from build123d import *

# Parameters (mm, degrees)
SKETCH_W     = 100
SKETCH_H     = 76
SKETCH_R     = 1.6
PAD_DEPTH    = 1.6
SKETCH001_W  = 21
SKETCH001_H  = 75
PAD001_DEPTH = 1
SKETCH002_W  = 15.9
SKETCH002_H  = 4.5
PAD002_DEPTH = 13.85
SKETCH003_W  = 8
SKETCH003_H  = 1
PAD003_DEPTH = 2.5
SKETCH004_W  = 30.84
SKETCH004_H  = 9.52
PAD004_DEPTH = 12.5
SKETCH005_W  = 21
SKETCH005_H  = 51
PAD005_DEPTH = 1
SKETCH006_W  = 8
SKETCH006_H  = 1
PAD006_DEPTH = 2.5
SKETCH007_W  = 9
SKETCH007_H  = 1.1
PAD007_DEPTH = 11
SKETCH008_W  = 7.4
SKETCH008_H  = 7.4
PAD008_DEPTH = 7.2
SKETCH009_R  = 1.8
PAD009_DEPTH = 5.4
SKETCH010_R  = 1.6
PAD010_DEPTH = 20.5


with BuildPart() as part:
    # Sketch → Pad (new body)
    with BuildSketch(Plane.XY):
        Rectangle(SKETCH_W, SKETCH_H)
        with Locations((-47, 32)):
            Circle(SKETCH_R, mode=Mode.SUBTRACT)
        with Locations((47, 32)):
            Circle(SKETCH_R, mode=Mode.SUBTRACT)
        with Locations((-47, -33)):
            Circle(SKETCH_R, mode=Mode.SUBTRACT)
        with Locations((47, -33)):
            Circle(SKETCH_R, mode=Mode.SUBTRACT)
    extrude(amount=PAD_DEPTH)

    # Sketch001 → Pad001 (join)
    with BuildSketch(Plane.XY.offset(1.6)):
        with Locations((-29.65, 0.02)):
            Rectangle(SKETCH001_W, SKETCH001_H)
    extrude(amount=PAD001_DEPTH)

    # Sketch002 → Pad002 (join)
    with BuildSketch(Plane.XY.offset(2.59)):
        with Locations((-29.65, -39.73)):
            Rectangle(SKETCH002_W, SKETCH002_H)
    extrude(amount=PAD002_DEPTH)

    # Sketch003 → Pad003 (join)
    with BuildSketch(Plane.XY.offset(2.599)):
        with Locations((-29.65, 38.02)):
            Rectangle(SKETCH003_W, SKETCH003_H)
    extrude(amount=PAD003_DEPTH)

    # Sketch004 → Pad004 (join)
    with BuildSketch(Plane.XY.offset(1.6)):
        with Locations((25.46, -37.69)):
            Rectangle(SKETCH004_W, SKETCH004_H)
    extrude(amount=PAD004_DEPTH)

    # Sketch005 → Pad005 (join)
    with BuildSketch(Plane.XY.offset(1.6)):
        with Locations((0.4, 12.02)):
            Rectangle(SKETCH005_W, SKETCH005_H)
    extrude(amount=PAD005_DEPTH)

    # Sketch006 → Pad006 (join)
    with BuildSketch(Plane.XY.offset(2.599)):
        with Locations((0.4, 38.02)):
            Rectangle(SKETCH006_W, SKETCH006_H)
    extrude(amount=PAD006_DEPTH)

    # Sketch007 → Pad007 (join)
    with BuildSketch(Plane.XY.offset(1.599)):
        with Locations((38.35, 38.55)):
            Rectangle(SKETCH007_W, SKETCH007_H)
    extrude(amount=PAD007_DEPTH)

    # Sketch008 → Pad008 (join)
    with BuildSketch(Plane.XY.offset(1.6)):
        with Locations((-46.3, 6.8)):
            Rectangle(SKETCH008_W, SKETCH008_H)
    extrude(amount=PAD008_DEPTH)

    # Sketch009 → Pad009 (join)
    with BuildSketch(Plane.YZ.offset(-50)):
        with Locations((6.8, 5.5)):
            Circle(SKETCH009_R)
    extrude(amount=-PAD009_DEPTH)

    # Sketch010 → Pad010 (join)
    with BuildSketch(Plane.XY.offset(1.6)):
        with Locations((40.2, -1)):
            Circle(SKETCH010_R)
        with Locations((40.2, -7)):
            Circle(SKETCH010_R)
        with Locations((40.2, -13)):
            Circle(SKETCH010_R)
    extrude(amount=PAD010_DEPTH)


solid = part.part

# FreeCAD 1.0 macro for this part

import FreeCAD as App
import Part
import Sketcher
from FreeCAD import Vector

doc = App.newDocument("Part")
body = doc.addObject("PartDesign::Body", "Body")

sketch1 = body.newObject("Sketcher::SketchObject", "Sketch")
sketch1.AttachmentSupport = (doc.getObject("XY_Plane"), [""])
sketch1.MapMode = "FlatFace"
sketch1.addGeometry([
    Part.LineSegment(Vector(-50, 38, 0), Vector(-50, -38, 0)),
    Part.LineSegment(Vector(-50, -38, 0), Vector(50, -38, 0)),
    Part.LineSegment(Vector(50, -38, 0), Vector(50, 38, 0)),
    Part.LineSegment(Vector(50, 38, 0), Vector(-50, 38, 0)),
    Part.Circle(Vector(-47, -33, 0), Vector(0, 0, 1), 1.6),
    Part.Circle(Vector(47, -33, 0), Vector(0, 0, 1), 1.6),
    Part.Circle(Vector(-47, 32, 0), Vector(0, 0, 1), 1.6),
    Part.Circle(Vector(47, 32, 0), Vector(0, 0, 1), 1.6),
], False)
sketch1.addConstraint([
    Sketcher.Constraint("Coincident", 0, 2, 1, 1),
    Sketcher.Constraint("Coincident", 1, 2, 2, 1),
    Sketcher.Constraint("Coincident", 2, 2, 3, 1),
    Sketcher.Constraint("Coincident", 3, 2, 0, 1),
    Sketcher.Constraint("Vertical", 0),
    Sketcher.Constraint("Horizontal", 1),
    Sketcher.Constraint("Vertical", 2),
    Sketcher.Constraint("Horizontal", 3),
    Sketcher.Constraint("Equal", 4, 5),
    Sketcher.Constraint("Equal", 5, 6),
    Sketcher.Constraint("Equal", 6, 7),
    Sketcher.Constraint("Symmetric", 0, 2, 2, 2, -1, 1),
    Sketcher.Constraint("Symmetric", 4, 3, 5, 3, -2),
    Sketcher.Constraint("Symmetric", 6, 3, 7, 3, -2),
    Sketcher.Constraint("Vertical", 4, 3, 6, 3),
    Sketcher.Constraint("Diameter", 4, 3.2),
    Sketcher.Constraint("DistanceX", 1, 1, 1, 2, 100.0),
    Sketcher.Constraint("DistanceY", 0, 2, 0, 1, 76.0),
    Sketcher.Constraint("DistanceX", 4, 3, -1, 1, 47.0),
    Sketcher.Constraint("DistanceY", 4, 3, -1, 1, 33.0),
    Sketcher.Constraint("DistanceY", -1, 1, 6, 3, 32.0),
])
pad1 = body.newObject("PartDesign::Pad", "Pad")
pad1.Profile = sketch1
pad1.Length = 1.6

sketch2 = body.newObject("Sketcher::SketchObject", "Sketch001")
sketch2.AttachmentSupport = (doc.getObject("XY_Plane"), [""])
sketch2.MapMode = "FlatFace"
sketch2.AttachmentOffset = App.Placement(Vector(0, 0, 1.6), App.Rotation())
sketch2.addGeometry([
    Part.LineSegment(Vector(-40, 38, 0), Vector(-40, -37, 0)),
    Part.LineSegment(Vector(-40, -37, 0), Vector(-19, -37, 0)),
    Part.LineSegment(Vector(-19, -37, 0), Vector(-19, 38, 0)),
    Part.LineSegment(Vector(-19, 38, 0), Vector(-40, 38, 0)),
], False)
sketch2.addConstraint([
    Sketcher.Constraint("Coincident", 0, 2, 1, 1),
    Sketcher.Constraint("Coincident", 1, 2, 2, 1),
    Sketcher.Constraint("Coincident", 2, 2, 3, 1),
    Sketcher.Constraint("Coincident", 3, 2, 0, 1),
    Sketcher.Constraint("Vertical", 0),
    Sketcher.Constraint("Horizontal", 1),
    Sketcher.Constraint("Vertical", 2),
    Sketcher.Constraint("Horizontal", 3),
    Sketcher.Constraint("DistanceX", 1, 1, 1, 2, 21.0),
    Sketcher.Constraint("DistanceY", 0, 2, 0, 1, 75.0),
    Sketcher.Constraint("DistanceX", 0, 2, -1, 1, 40.15),
    Sketcher.Constraint("DistanceY", 0, 2, -1, 1, 37.48),
])
pad2 = body.newObject("PartDesign::Pad", "Pad001")
pad2.Profile = sketch2
pad2.Length = 1

sketch3 = body.newObject("Sketcher::SketchObject", "Sketch002")
sketch3.AttachmentSupport = (doc.getObject("XY_Plane"), [""])
sketch3.MapMode = "FlatFace"
sketch3.AttachmentOffset = App.Placement(Vector(0, 0, 2.59), App.Rotation())
sketch3.addGeometry([
    Part.LineSegment(Vector(-37.6, -37.5, 0), Vector(-37.6, -42, 0)),
    Part.LineSegment(Vector(-37.6, -42, 0), Vector(-21.7, -42, 0)),
    Part.LineSegment(Vector(-21.7, -42, 0), Vector(-21.7, -37.5, 0)),
    Part.LineSegment(Vector(-21.7, -37.5, 0), Vector(-37.6, -37.5, 0)),
], False)
sketch3.addConstraint([
    Sketcher.Constraint("Coincident", 0, 2, 1, 1),
    Sketcher.Constraint("Coincident", 1, 2, 2, 1),
    Sketcher.Constraint("Coincident", 2, 2, 3, 1),
    Sketcher.Constraint("Coincident", 3, 2, 0, 1),
    Sketcher.Constraint("Vertical", 0),
    Sketcher.Constraint("Horizontal", 1),
    Sketcher.Constraint("Vertical", 2),
    Sketcher.Constraint("Horizontal", 3),
    Sketcher.Constraint("DistanceX", 1, 1, 1, 2, 15.9),
    Sketcher.Constraint("DistanceY", 0, 2, 0, 1, 4.5),
    Sketcher.Constraint("DistanceX", 0, 2, -1, 1, 37.6),
    Sketcher.Constraint("DistanceY", 0, 2, -1, 1, 41.98),
])
pad3 = body.newObject("PartDesign::Pad", "Pad002")
pad3.Profile = sketch3
pad3.Length = 13.85

sketch4 = body.newObject("Sketcher::SketchObject", "Sketch003")
sketch4.AttachmentSupport = (doc.getObject("XY_Plane"), [""])
sketch4.MapMode = "FlatFace"
sketch4.AttachmentOffset = App.Placement(Vector(0, 0, 2.599), App.Rotation())
sketch4.addGeometry([
    Part.LineSegment(Vector(-33.6, 38.5, 0), Vector(-33.6, 37.5, 0)),
    Part.LineSegment(Vector(-33.6, 37.5, 0), Vector(-25.6, 37.5, 0)),
    Part.LineSegment(Vector(-25.6, 37.5, 0), Vector(-25.6, 38.5, 0)),
    Part.LineSegment(Vector(-25.6, 38.5, 0), Vector(-33.6, 38.5, 0)),
], False)
sketch4.addConstraint([
    Sketcher.Constraint("Coincident", 0, 2, 1, 1),
    Sketcher.Constraint("Coincident", 1, 2, 2, 1),
    Sketcher.Constraint("Coincident", 2, 2, 3, 1),
    Sketcher.Constraint("Coincident", 3, 2, 0, 1),
    Sketcher.Constraint("Vertical", 0),
    Sketcher.Constraint("Horizontal", 1),
    Sketcher.Constraint("Vertical", 2),
    Sketcher.Constraint("Horizontal", 3),
    Sketcher.Constraint("DistanceX", 1, 1, 1, 2, 8.0),
    Sketcher.Constraint("DistanceY", 0, 2, 0, 1, 1.0),
    Sketcher.Constraint("DistanceX", 0, 2, -1, 1, 33.65),
    Sketcher.Constraint("DistanceY", -1, 1, 0, 2, 37.52),
])
pad4 = body.newObject("PartDesign::Pad", "Pad003")
pad4.Profile = sketch4
pad4.Length = 2.5

sketch5 = body.newObject("Sketcher::SketchObject", "Sketch004")
sketch5.AttachmentSupport = (doc.getObject("XY_Plane"), [""])
sketch5.MapMode = "FlatFace"
sketch5.AttachmentOffset = App.Placement(Vector(0, 0, 1.6), App.Rotation())
sketch5.addGeometry([
    Part.LineSegment(Vector(10, -33, 0), Vector(10, -42, 0)),
    Part.LineSegment(Vector(10, -42, 0), Vector(41, -42, 0)),
    Part.LineSegment(Vector(41, -42, 0), Vector(41, -33, 0)),
    Part.LineSegment(Vector(41, -33, 0), Vector(10, -33, 0)),
], False)
sketch5.addConstraint([
    Sketcher.Constraint("Coincident", 0, 2, 1, 1),
    Sketcher.Constraint("Coincident", 1, 2, 2, 1),
    Sketcher.Constraint("Coincident", 2, 2, 3, 1),
    Sketcher.Constraint("Coincident", 3, 2, 0, 1),
    Sketcher.Constraint("Vertical", 0),
    Sketcher.Constraint("Horizontal", 1),
    Sketcher.Constraint("Vertical", 2),
    Sketcher.Constraint("Horizontal", 3),
    Sketcher.Constraint("DistanceX", 1, 1, 1, 2, 30.84),
    Sketcher.Constraint("DistanceY", 0, 2, 0, 1, 9.52),
    Sketcher.Constraint("DistanceX", -1, 1, 0, 2, 10.04),
    Sketcher.Constraint("DistanceY", 0, 2, -1, 1, 42.45),
])
pad5 = body.newObject("PartDesign::Pad", "Pad004")
pad5.Profile = sketch5
pad5.Length = 12.5

sketch6 = body.newObject("Sketcher::SketchObject", "Sketch005")
sketch6.AttachmentSupport = (doc.getObject("XY_Plane"), [""])
sketch6.MapMode = "FlatFace"
sketch6.AttachmentOffset = App.Placement(Vector(0, 0, 1.6), App.Rotation())
sketch6.addGeometry([
    Part.LineSegment(Vector(-10, 38, 0), Vector(-10, -13, 0)),
    Part.LineSegment(Vector(-10, -13, 0), Vector(11, -13, 0)),
    Part.LineSegment(Vector(11, -13, 0), Vector(11, 38, 0)),
    Part.LineSegment(Vector(11, 38, 0), Vector(-10, 38, 0)),
], False)
sketch6.addConstraint([
    Sketcher.Constraint("Coincident", 0, 2, 1, 1),
    Sketcher.Constraint("Coincident", 1, 2, 2, 1),
    Sketcher.Constraint("Coincident", 2, 2, 3, 1),
    Sketcher.Constraint("Coincident", 3, 2, 0, 1),
    Sketcher.Constraint("Vertical", 0),
    Sketcher.Constraint("Horizontal", 1),
    Sketcher.Constraint("Vertical", 2),
    Sketcher.Constraint("Horizontal", 3),
    Sketcher.Constraint("DistanceX", 1, 1, 1, 2, 21.0),
    Sketcher.Constraint("DistanceY", 0, 2, 0, 1, 51.0),
    Sketcher.Constraint("DistanceX", 0, 2, -1, 1, 10.1),
    Sketcher.Constraint("DistanceY", 0, 2, -1, 1, 13.48),
])
pad6 = body.newObject("PartDesign::Pad", "Pad005")
pad6.Profile = sketch6
pad6.Length = 1

sketch7 = body.newObject("Sketcher::SketchObject", "Sketch006")
sketch7.AttachmentSupport = (doc.getObject("XY_Plane"), [""])
sketch7.MapMode = "FlatFace"
sketch7.AttachmentOffset = App.Placement(Vector(0, 0, 2.599), App.Rotation())
sketch7.addGeometry([
    Part.LineSegment(Vector(-3.6, 38.5, 0), Vector(-3.6, 37.5, 0)),
    Part.LineSegment(Vector(-3.6, 37.5, 0), Vector(4.4, 37.5, 0)),
    Part.LineSegment(Vector(4.4, 37.5, 0), Vector(4.4, 38.5, 0)),
    Part.LineSegment(Vector(4.4, 38.5, 0), Vector(-3.6, 38.5, 0)),
], False)
sketch7.addConstraint([
    Sketcher.Constraint("Coincident", 0, 2, 1, 1),
    Sketcher.Constraint("Coincident", 1, 2, 2, 1),
    Sketcher.Constraint("Coincident", 2, 2, 3, 1),
    Sketcher.Constraint("Coincident", 3, 2, 0, 1),
    Sketcher.Constraint("Vertical", 0),
    Sketcher.Constraint("Horizontal", 1),
    Sketcher.Constraint("Vertical", 2),
    Sketcher.Constraint("Horizontal", 3),
    Sketcher.Constraint("DistanceX", 1, 1, 1, 2, 8.0),
    Sketcher.Constraint("DistanceY", 0, 2, 0, 1, 1.0),
    Sketcher.Constraint("DistanceX", 0, 2, -1, 1, 3.6),
    Sketcher.Constraint("DistanceY", -1, 1, 0, 2, 37.52),
])
pad7 = body.newObject("PartDesign::Pad", "Pad006")
pad7.Profile = sketch7
pad7.Length = 2.5

sketch8 = body.newObject("Sketcher::SketchObject", "Sketch007")
sketch8.AttachmentSupport = (doc.getObject("XY_Plane"), [""])
sketch8.MapMode = "FlatFace"
sketch8.AttachmentOffset = App.Placement(Vector(0, 0, 1.599), App.Rotation())
sketch8.addGeometry([
    Part.LineSegment(Vector(33.9, 39.1, 0), Vector(33.9, 38, 0)),
    Part.LineSegment(Vector(33.9, 38, 0), Vector(42.9, 38, 0)),
    Part.LineSegment(Vector(42.9, 38, 0), Vector(42.9, 39.1, 0)),
    Part.LineSegment(Vector(42.9, 39.1, 0), Vector(33.9, 39.1, 0)),
], False)
sketch8.addConstraint([
    Sketcher.Constraint("Coincident", 0, 2, 1, 1),
    Sketcher.Constraint("Coincident", 1, 2, 2, 1),
    Sketcher.Constraint("Coincident", 2, 2, 3, 1),
    Sketcher.Constraint("Coincident", 3, 2, 0, 1),
    Sketcher.Constraint("Vertical", 0),
    Sketcher.Constraint("Horizontal", 1),
    Sketcher.Constraint("Vertical", 2),
    Sketcher.Constraint("Horizontal", 3),
    Sketcher.Constraint("DistanceX", 1, 1, 1, 2, 9.0),
    Sketcher.Constraint("DistanceY", 0, 2, 0, 1, 1.1),
    Sketcher.Constraint("DistanceY", -1, 1, 0, 2, 38.0),
    Sketcher.Constraint("DistanceX", -1, 1, 0, 2, 33.85),
])
pad8 = body.newObject("PartDesign::Pad", "Pad007")
pad8.Profile = sketch8
pad8.Length = 11

sketch9 = body.newObject("Sketcher::SketchObject", "Sketch008")
sketch9.AttachmentSupport = (doc.getObject("XY_Plane"), [""])
sketch9.MapMode = "FlatFace"
sketch9.AttachmentOffset = App.Placement(Vector(0, 0, 1.6), App.Rotation())
sketch9.addGeometry([
    Part.LineSegment(Vector(-50, 10, 0), Vector(-50, 3, 0)),
    Part.LineSegment(Vector(-50, 3, 0), Vector(-43, 3, 0)),
    Part.LineSegment(Vector(-43, 3, 0), Vector(-43, 10, 0)),
    Part.LineSegment(Vector(-43, 10, 0), Vector(-50, 10, 0)),
], False)
sketch9.addConstraint([
    Sketcher.Constraint("Coincident", 0, 2, 1, 1),
    Sketcher.Constraint("Coincident", 1, 2, 2, 1),
    Sketcher.Constraint("Coincident", 2, 2, 3, 1),
    Sketcher.Constraint("Coincident", 3, 2, 0, 1),
    Sketcher.Constraint("Vertical", 0),
    Sketcher.Constraint("Horizontal", 1),
    Sketcher.Constraint("Vertical", 2),
    Sketcher.Constraint("Horizontal", 3),
    Sketcher.Constraint("Equal", 3, 0),
    Sketcher.Constraint("DistanceX", 1, 1, 1, 2, 7.4),
    Sketcher.Constraint("DistanceX", 0, 2, -1, 1, 50.0),
    Sketcher.Constraint("DistanceY", -1, 1, 0, 2, 3.1),
])
pad9 = body.newObject("PartDesign::Pad", "Pad008")
pad9.Profile = sketch9
pad9.Length = 7.2

sketch10 = body.newObject("Sketcher::SketchObject", "Sketch009")
sketch10.AttachmentSupport = (doc.getObject("YZ_Plane"), [""])
sketch10.MapMode = "FlatFace"
sketch10.AttachmentOffset = App.Placement(Vector(0, 0, -50), App.Rotation())
sketch10.addGeometry(Part.Circle(Vector(6.8, 5.5, 0), Vector(0, 0, 1), 1.8), False)
sketch10.addConstraint([
    Sketcher.Constraint("Diameter", 0, 3.6),
    Sketcher.Constraint("DistanceX", -1, 1, 0, 3, 6.8),
    Sketcher.Constraint("DistanceY", -1, 1, 0, 3, 5.5),
])
pad10 = body.newObject("PartDesign::Pad", "Pad009")
pad10.Profile = sketch10
pad10.Length = 5.4
pad10.Reversed = True

sketch11 = body.newObject("Sketcher::SketchObject", "Sketch010")
sketch11.AttachmentSupport = (doc.getObject("XY_Plane"), [""])
sketch11.MapMode = "FlatFace"
sketch11.AttachmentOffset = App.Placement(Vector(0, 0, 1.6), App.Rotation())
sketch11.addGeometry([
    Part.Circle(Vector(40.2, -1, 0), Vector(0, 0, 1), 1.6),
    Part.Circle(Vector(40.2, -7, 0), Vector(0, 0, 1), 1.6),
    Part.Circle(Vector(40.2, -13, 0), Vector(0, 0, 1), 1.6),
], False)
sketch11.addConstraint([
    Sketcher.Constraint("Equal", 0, 1),
    Sketcher.Constraint("Equal", 1, 2),
    Sketcher.Constraint("Vertical", 0, 3, 1, 3),
    Sketcher.Constraint("Vertical", 1, 3, 2, 3),
    Sketcher.Constraint("Diameter", 0, 3.2),
    Sketcher.Constraint("DistanceY", 0, 3, -1, 1, 1.0),
    Sketcher.Constraint("DistanceY", 1, 3, -1, 1, 7.0),
    Sketcher.Constraint("DistanceY", 2, 3, -1, 1, 13.0),
    Sketcher.Constraint("DistanceX", -1, 1, 0, 3, 40.2),
])
pad11 = body.newObject("PartDesign::Pad", "Pad010")
pad11.Profile = sketch11
pad11.Length = 20.5

doc.recompute()
